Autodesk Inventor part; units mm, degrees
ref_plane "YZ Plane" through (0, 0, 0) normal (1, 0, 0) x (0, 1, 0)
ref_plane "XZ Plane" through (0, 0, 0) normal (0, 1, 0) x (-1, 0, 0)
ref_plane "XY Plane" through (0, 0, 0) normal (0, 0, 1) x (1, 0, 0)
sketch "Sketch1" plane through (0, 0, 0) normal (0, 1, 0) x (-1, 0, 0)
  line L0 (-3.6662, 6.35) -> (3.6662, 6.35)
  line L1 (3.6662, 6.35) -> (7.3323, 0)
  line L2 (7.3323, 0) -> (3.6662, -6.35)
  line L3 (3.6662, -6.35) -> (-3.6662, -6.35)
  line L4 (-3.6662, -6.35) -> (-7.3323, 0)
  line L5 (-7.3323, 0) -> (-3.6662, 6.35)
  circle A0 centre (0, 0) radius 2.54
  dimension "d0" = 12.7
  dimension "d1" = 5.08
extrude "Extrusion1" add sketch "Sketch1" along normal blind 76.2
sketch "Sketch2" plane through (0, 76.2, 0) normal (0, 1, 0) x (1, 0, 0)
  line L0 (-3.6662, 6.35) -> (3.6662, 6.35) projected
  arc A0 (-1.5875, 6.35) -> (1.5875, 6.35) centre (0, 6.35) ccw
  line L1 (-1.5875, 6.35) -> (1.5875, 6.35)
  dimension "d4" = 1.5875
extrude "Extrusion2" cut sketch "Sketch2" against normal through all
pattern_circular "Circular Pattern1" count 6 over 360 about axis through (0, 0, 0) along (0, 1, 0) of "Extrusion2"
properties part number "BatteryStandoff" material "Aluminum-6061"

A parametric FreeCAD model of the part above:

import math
import FreeCAD as App
import Part
import Sketcher
Q = App.Units.Quantity

doc = App.newDocument("Part")
body = doc.addObject("PartDesign::Body", "Body")

# Sketch on XZ plane
sketch1 = body.newObject("Sketcher::SketchObject", "Sketch")
sketch1.AttachmentSupport = (doc.getObject("XZ_Plane"), [""])
sketch1.MapMode = "FlatFace"
sketch1.addGeometry(Part.LineSegment(App.Vector(-3.7, 6.3, 0), App.Vector(3.7, 6.3, 0)), False)
sketch1.addGeometry(Part.LineSegment(App.Vector(3.7, 6.3, 0), App.Vector(7.3, 0, 0)), False)
sketch1.addGeometry(Part.LineSegment(App.Vector(7.3, 0, 0), App.Vector(3.7, -6.3, 0)), False)
sketch1.addGeometry(Part.LineSegment(App.Vector(3.7, -6.3, 0), App.Vector(-3.7, -6.3, 0)), False)
sketch1.addGeometry(Part.LineSegment(App.Vector(-3.7, -6.3, 0), App.Vector(-7.3, 0, 0)), False)
sketch1.addGeometry(Part.LineSegment(App.Vector(-7.3, 0, 0), App.Vector(-3.7, 6.3, 0)), False)
sketch1.addGeometry(Part.Circle(App.Vector(0, 0, 0), App.Vector(0, 0, 1), 2.5), False)
sketch1.addConstraint(Sketcher.Constraint("Coincident", 0, 2, 1, 1))
sketch1.addConstraint(Sketcher.Constraint("Coincident", 1, 2, 2, 1))
sketch1.addConstraint(Sketcher.Constraint("Coincident", 2, 2, 3, 1))
sketch1.addConstraint(Sketcher.Constraint("Coincident", 3, 2, 4, 1))
sketch1.addConstraint(Sketcher.Constraint("Coincident", 4, 2, 5, 1))
sketch1.addConstraint(Sketcher.Constraint("Coincident", 5, 2, 0, 1))
sketch1.addConstraint(Sketcher.Constraint("Horizontal", 0))
sketch1.addConstraint(Sketcher.Constraint("Horizontal", 3))
sketch1.addConstraint(Sketcher.Constraint("Coincident", 6, 3, -1, 1))
sketch1.addConstraint(Sketcher.Constraint("Symmetric", 0, 2, 3, 2, -1, 1))
sketch1.addConstraint(Sketcher.Constraint("Symmetric", 1, 2, 4, 2, -1, 1))
sketch1.addConstraint(Sketcher.Constraint("PointOnObject", 1, 2, -1))
sketch1.addConstraint(Sketcher.Constraint("Parallel", 2, 5))
sketch1.addConstraint(Sketcher.Constraint("Vertical", 0, 2, 2, 2))
sketch1.addConstraint(Sketcher.Constraint("Diameter", 6, Q("0.2 in")))
sketch1.addConstraint(Sketcher.Constraint("DistanceY", 2, 2, 0, 2, Q("0.5 in")))
sketch1.addConstraint(Sketcher.Constraint("Angle", 1, Q("-60.0005 deg")))
sketch1.addConstraint(Sketcher.Constraint("DistanceX", 3, 2, 1, 2, Q("0.433 in")))
pad1 = body.newObject("PartDesign::Pad", "Pad")
pad1.Profile = sketch1
pad1.Length = Q("3 in")
pad1.Reversed = True

# Sketch on XZ plane
sketch2 = body.newObject("Sketcher::SketchObject", "Sketch001")
sketch2.AttachmentSupport = (doc.getObject("XZ_Plane"), [""])
sketch2.MapMode = "FlatFace"
sketch2.AttachmentOffset = App.Placement(App.Vector(0, 0, -3 * 25.4), App.Rotation())
sketch2.addGeometry(Part.LineSegment(App.Vector(1.6, -6.3, 0), App.Vector(-1.6, -6.3, 0)), False)
sketch2.addGeometry(Part.ArcOfCircle(Part.Circle(App.Vector(0, -6.3, 0), App.Vector(0, 0, 1), 1.6), math.radians(0), math.radians(180)), False)
sketch2.addConstraint(Sketcher.Constraint("Coincident", 0, 1, 1, 1))
sketch2.addConstraint(Sketcher.Constraint("Coincident", 1, 2, 0, 2))
sketch2.addConstraint(Sketcher.Constraint("Horizontal", 0))
sketch2.addConstraint(Sketcher.Constraint("PointOnObject", 1, 3, -2))
sketch2.addConstraint(Sketcher.Constraint("Horizontal", 1, 3, 0, 1))
sketch2.addConstraint(Sketcher.Constraint("Radius", 1, Q("0.0625 in")))
sketch2.addConstraint(Sketcher.Constraint("DistanceY", 1, 3, -1, 1, Q("0.25 in")))
pocket1 = body.newObject("PartDesign::Pocket", "Pocket")
pocket1.Profile = sketch2
pocket1.Type = "ThroughAll"
pocket1.Reversed = True
doc.recompute()

polarpattern = body.newObject("PartDesign::PolarPattern", "PolarPattern")
polarpattern.Originals = [pocket1]
polarpattern.Axis = (doc.getObject("Y_Axis"), [""])
polarpattern.Angle = 360
polarpattern.Occurrences = 6
body.Tip = polarpattern

doc.recompute()
